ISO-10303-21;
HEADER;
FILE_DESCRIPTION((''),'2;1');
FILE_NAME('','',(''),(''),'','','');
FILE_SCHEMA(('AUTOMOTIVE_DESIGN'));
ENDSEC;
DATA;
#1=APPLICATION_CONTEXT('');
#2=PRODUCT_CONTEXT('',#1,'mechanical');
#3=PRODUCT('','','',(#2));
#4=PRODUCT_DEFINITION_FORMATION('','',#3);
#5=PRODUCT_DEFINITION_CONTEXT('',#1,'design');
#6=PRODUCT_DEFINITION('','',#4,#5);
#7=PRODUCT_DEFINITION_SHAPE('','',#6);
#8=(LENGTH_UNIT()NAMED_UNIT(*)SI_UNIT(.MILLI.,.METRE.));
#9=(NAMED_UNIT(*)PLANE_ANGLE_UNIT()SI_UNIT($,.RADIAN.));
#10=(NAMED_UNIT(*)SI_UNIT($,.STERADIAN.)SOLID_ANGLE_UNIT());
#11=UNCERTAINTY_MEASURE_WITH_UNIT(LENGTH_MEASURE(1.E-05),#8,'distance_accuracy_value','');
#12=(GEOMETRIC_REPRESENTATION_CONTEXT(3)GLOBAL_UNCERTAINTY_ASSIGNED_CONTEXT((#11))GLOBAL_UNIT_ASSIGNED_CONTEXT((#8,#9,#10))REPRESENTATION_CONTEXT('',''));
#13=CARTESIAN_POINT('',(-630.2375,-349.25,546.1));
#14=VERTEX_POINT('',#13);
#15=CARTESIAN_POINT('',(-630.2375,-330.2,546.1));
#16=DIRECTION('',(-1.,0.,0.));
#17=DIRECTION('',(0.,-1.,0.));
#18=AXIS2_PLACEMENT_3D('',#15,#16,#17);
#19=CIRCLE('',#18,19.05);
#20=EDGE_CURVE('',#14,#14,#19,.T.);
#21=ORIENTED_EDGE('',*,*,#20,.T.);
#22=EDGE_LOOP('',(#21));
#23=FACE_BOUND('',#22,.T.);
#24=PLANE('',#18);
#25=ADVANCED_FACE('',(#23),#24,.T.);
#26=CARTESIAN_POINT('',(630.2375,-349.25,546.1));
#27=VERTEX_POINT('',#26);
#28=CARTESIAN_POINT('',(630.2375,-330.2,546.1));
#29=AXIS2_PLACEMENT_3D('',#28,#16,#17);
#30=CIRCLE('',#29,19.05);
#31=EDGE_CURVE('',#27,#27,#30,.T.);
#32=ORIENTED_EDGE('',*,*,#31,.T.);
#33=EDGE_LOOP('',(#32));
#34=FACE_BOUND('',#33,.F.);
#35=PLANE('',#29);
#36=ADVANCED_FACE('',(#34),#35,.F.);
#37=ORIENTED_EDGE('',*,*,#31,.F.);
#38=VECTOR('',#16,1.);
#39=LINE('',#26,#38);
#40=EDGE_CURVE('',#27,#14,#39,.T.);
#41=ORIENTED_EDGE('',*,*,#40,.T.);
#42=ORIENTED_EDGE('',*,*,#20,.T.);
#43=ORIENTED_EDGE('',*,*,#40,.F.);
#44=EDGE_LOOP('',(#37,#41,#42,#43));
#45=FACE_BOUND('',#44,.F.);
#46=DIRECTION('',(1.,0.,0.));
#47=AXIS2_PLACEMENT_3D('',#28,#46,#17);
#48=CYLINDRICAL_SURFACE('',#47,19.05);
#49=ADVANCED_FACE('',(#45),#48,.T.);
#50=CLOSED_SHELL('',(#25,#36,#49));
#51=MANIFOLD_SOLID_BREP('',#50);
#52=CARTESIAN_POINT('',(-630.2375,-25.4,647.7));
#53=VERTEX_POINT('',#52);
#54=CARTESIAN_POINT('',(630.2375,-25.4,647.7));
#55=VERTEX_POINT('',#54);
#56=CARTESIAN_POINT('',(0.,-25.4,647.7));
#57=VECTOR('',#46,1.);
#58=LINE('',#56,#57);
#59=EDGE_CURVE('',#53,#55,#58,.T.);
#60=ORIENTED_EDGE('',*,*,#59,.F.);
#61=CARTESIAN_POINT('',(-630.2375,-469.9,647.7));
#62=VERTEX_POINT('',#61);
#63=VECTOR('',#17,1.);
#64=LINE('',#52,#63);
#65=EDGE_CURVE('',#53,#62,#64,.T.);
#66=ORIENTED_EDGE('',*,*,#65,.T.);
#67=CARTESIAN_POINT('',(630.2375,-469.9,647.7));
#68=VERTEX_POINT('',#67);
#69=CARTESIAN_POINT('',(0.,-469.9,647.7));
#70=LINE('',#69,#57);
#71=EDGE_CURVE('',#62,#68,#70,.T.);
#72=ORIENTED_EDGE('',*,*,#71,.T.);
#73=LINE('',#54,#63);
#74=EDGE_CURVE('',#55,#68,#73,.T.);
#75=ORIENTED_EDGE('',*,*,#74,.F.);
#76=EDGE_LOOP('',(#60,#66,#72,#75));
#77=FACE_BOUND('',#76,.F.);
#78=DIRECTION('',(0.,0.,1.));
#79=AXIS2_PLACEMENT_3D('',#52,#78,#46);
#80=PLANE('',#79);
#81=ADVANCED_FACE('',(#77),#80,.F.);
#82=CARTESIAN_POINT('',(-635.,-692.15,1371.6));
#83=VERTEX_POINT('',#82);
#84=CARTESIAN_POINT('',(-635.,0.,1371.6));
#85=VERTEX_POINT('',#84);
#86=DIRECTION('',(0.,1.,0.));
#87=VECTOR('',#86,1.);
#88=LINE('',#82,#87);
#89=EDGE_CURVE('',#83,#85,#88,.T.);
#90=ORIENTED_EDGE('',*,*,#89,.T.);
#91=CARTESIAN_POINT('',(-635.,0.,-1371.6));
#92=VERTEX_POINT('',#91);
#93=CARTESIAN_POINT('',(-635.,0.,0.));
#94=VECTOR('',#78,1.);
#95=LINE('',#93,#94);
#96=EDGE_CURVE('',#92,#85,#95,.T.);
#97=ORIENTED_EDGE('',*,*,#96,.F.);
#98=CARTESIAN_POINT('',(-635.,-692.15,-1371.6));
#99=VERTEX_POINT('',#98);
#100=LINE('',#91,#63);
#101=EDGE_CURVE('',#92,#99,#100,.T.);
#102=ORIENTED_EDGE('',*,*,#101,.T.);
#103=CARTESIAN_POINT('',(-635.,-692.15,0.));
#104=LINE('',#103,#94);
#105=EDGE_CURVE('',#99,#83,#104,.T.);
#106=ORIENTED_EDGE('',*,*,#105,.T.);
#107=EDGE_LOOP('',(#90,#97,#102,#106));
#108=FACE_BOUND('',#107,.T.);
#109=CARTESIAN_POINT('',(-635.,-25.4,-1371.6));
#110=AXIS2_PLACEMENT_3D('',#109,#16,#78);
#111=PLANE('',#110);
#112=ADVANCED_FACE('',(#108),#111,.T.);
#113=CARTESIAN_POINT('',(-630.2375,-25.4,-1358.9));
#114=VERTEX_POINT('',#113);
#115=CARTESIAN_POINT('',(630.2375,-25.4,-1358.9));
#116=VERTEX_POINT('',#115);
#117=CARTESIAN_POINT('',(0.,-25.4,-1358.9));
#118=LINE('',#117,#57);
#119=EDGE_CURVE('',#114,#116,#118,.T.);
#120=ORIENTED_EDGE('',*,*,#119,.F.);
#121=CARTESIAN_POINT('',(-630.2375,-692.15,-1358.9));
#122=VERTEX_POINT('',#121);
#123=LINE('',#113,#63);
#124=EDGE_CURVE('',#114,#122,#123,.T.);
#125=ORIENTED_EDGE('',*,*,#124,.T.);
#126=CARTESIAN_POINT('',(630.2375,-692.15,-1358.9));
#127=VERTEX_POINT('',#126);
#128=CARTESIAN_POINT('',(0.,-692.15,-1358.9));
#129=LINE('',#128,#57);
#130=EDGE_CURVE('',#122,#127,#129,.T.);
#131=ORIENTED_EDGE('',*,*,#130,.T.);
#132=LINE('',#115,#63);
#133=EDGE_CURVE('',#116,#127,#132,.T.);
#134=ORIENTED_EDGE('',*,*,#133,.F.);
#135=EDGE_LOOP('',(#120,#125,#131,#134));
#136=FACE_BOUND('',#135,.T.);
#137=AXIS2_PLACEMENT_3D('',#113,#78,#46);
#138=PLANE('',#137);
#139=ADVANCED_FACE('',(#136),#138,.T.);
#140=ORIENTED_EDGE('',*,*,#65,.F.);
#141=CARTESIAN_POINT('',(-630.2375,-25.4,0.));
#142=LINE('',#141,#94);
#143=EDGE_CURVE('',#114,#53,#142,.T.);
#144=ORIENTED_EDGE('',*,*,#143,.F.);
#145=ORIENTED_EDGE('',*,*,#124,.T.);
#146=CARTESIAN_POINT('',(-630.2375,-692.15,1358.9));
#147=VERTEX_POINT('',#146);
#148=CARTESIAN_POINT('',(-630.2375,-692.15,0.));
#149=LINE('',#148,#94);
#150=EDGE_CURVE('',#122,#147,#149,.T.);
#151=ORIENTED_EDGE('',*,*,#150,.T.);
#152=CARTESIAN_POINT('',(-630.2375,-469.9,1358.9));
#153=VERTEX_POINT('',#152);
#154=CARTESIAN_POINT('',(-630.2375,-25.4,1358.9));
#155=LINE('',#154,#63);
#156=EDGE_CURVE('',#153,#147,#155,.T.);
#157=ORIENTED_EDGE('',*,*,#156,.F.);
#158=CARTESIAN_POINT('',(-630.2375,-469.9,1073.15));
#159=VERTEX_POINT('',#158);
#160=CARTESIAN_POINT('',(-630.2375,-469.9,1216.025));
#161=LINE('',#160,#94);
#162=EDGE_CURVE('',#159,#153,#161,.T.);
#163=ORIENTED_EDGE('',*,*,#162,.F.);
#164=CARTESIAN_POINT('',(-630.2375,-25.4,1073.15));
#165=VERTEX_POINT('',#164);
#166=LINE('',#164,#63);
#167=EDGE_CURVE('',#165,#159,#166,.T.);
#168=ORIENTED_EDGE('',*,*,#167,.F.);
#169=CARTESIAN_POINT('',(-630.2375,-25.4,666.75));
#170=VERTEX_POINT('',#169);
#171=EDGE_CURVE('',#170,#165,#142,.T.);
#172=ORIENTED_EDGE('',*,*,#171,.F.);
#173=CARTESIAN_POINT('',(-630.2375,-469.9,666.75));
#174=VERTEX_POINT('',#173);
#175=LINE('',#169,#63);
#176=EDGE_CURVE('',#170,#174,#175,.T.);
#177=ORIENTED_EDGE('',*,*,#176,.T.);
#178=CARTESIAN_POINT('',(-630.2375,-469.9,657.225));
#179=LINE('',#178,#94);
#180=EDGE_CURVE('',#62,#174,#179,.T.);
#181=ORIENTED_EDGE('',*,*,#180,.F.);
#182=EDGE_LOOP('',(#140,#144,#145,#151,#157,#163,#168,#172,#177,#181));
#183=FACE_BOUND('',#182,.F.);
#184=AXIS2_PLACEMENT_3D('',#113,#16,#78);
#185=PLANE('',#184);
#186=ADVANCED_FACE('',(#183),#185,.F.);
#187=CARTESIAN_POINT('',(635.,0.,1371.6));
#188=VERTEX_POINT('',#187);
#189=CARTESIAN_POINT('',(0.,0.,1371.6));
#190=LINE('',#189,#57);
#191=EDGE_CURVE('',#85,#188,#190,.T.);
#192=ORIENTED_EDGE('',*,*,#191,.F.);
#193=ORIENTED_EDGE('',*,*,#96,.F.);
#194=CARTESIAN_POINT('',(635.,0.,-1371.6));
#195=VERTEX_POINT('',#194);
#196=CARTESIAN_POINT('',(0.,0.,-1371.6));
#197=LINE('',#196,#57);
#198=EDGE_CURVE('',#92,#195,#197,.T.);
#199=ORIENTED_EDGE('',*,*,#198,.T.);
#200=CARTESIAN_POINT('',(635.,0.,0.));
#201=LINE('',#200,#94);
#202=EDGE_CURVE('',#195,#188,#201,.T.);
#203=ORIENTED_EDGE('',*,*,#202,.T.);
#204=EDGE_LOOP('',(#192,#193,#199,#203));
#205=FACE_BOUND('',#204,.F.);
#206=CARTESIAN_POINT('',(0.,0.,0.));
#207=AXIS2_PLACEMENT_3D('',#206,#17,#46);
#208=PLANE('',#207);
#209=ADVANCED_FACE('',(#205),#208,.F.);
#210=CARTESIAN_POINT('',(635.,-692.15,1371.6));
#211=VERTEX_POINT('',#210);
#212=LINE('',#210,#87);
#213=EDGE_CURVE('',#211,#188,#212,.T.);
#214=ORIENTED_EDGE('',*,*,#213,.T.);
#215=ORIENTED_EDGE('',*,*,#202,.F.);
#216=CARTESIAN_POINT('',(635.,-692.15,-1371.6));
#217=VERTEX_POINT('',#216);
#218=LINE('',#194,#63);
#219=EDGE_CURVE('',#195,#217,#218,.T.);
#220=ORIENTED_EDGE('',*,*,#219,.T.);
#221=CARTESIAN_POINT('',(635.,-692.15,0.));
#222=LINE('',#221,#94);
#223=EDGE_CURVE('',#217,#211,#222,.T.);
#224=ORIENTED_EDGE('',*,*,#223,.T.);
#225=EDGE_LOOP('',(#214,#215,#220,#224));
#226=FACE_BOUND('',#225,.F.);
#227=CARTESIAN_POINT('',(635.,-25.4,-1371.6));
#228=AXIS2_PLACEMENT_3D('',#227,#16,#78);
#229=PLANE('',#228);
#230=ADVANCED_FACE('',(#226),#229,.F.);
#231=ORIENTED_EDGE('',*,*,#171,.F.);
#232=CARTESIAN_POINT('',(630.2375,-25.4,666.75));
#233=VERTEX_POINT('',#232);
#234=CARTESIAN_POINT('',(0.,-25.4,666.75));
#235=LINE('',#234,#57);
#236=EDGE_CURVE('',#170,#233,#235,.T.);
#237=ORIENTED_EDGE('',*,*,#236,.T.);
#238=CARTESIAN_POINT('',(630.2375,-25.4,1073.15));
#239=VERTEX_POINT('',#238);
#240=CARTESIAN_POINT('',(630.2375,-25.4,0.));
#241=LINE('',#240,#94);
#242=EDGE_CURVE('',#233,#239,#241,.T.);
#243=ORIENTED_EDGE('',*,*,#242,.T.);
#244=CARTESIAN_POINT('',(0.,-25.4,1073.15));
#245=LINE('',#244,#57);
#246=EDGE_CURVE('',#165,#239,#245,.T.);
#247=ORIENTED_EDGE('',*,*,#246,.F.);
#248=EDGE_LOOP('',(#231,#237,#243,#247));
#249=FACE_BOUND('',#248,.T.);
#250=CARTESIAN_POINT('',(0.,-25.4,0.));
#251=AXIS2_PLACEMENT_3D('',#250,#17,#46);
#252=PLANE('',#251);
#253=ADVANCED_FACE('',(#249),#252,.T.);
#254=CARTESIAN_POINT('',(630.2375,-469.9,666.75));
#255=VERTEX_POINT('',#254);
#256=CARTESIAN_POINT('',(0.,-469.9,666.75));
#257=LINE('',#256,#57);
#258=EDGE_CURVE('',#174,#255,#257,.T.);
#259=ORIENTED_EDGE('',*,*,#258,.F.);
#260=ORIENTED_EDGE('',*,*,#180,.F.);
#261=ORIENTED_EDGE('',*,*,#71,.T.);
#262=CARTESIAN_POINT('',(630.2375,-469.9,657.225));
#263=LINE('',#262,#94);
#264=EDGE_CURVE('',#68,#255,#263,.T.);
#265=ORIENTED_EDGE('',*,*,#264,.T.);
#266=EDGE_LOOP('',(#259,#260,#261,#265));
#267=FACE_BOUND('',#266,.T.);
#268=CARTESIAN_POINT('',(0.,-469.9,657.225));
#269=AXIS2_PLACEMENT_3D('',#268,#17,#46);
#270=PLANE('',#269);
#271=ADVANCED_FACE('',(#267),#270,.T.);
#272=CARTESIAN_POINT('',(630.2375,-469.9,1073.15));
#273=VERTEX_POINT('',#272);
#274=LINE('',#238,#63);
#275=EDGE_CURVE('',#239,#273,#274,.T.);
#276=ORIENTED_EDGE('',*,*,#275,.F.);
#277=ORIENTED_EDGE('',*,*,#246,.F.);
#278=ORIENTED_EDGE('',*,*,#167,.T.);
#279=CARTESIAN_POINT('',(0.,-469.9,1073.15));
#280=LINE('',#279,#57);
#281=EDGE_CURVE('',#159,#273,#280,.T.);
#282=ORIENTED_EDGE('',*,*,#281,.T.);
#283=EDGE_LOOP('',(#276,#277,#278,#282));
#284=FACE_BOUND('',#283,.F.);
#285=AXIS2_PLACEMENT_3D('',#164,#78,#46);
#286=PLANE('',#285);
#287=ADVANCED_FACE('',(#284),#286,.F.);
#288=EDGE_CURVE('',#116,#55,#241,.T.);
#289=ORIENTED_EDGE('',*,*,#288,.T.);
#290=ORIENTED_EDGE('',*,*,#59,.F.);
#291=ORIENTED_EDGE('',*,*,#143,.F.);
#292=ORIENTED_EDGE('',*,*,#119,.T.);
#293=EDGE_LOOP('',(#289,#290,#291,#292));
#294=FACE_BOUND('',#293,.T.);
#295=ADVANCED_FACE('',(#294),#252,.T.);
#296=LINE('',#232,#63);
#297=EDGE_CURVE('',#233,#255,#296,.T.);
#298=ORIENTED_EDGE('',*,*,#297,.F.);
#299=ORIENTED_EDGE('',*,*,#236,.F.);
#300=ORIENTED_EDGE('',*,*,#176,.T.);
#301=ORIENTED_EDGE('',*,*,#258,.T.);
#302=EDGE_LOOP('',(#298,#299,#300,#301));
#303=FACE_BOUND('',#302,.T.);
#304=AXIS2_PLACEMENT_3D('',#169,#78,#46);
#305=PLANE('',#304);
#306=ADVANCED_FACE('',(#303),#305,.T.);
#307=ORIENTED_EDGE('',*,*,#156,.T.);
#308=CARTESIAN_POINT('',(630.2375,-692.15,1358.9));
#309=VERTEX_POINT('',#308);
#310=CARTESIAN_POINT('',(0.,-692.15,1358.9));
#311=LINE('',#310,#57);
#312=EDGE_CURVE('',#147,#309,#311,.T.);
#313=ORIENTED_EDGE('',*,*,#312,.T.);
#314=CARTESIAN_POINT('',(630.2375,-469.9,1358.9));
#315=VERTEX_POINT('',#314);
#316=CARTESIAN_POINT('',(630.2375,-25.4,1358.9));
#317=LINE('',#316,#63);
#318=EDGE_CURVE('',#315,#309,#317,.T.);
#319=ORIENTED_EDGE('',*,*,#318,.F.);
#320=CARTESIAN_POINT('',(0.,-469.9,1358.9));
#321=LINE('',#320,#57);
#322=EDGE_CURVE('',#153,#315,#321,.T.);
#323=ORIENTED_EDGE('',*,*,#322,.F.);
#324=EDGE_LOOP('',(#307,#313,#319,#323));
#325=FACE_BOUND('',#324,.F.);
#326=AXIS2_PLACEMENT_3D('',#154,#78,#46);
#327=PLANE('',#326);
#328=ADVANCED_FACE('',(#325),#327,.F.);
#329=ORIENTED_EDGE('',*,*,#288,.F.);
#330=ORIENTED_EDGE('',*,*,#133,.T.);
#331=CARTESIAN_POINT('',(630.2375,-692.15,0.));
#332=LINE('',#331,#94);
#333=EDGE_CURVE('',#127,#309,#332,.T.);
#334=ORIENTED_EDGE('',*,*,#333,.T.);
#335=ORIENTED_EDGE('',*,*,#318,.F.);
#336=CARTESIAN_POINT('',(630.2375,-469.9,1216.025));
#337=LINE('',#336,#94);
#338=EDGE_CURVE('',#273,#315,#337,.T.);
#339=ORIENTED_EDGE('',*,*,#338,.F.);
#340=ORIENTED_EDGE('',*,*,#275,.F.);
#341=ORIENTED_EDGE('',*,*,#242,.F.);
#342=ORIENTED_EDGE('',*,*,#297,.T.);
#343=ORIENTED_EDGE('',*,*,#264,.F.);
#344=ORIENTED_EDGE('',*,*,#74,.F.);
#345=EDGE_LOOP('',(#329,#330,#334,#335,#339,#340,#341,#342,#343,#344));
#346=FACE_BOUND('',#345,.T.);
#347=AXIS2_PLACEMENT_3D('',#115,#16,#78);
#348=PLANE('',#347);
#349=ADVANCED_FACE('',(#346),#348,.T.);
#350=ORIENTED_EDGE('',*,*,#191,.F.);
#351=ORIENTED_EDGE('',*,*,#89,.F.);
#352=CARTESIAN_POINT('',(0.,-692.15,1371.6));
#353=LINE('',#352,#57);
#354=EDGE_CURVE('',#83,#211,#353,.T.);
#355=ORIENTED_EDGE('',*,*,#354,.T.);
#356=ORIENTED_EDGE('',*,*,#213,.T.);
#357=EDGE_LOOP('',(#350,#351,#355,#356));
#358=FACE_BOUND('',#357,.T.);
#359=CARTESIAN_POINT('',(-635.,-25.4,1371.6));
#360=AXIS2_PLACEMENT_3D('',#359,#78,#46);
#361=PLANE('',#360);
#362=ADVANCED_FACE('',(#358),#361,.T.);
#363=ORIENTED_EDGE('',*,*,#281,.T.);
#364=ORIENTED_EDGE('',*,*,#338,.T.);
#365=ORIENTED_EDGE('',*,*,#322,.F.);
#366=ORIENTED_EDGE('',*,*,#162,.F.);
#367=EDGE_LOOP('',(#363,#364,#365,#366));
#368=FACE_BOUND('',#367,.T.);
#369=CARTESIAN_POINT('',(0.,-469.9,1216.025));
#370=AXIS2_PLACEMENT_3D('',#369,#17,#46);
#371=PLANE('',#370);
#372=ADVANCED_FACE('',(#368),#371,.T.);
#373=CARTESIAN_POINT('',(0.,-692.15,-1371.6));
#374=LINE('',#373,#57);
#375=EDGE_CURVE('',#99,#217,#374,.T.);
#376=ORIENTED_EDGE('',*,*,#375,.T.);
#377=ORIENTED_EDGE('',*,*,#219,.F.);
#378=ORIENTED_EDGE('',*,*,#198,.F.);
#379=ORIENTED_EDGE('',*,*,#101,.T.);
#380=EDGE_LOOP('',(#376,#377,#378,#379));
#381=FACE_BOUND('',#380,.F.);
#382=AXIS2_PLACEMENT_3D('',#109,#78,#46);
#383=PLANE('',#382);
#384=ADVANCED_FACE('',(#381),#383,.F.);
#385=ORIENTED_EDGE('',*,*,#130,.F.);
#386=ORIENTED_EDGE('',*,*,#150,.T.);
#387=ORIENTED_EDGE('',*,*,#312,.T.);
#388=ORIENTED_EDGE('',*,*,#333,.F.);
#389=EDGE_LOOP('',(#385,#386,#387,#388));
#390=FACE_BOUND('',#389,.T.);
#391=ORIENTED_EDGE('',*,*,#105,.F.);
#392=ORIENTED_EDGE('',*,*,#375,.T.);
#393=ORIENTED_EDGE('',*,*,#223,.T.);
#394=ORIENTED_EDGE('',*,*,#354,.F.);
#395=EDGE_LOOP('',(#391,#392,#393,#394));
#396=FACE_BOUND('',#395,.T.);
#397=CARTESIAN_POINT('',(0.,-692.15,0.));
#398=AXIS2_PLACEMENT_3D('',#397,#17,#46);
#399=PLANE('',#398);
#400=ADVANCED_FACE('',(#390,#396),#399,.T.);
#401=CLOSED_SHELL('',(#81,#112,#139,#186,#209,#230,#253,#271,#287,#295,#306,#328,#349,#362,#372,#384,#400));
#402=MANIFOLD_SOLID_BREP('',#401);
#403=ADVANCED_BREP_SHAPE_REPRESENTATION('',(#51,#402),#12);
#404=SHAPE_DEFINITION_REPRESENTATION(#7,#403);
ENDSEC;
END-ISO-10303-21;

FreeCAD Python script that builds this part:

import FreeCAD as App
import Part
import Sketcher
from FreeCAD import Vector
Q = App.Units.Quantity

doc = App.newDocument("Part")
body = doc.addObject("PartDesign::Body", "Body")

# Sketch on XZ plane
sketch1 = body.newObject("Sketcher::SketchObject", "Sketch")
sketch1.AttachmentSupport = (doc.getObject("XZ_Plane"), [""])
sketch1.MapMode = "FlatFace"
sketch1.addGeometry([
    Part.LineSegment(Vector(-635, 1372, 0), Vector(-635, -1372, 0)),
    Part.LineSegment(Vector(-635, -1372, 0), Vector(635, -1372, 0)),
    Part.LineSegment(Vector(635, -1372, 0), Vector(635, 1372, 0)),
    Part.LineSegment(Vector(635, 1372, 0), Vector(-635, 1372, 0)),
], False)
sketch1.addConstraint([
    Sketcher.Constraint("Coincident", 0, 2, 1, 1),
    Sketcher.Constraint("Coincident", 1, 2, 2, 1),
    Sketcher.Constraint("Coincident", 2, 2, 3, 1),
    Sketcher.Constraint("Coincident", 3, 2, 0, 1),
    Sketcher.Constraint("Vertical", 0),
    Sketcher.Constraint("Horizontal", 1),
    Sketcher.Constraint("Vertical", 2),
    Sketcher.Constraint("Horizontal", 3),
    Sketcher.Constraint("Symmetric", 0, 2, 2, 2, -1, 1),
    Sketcher.Constraint("DistanceX", 1, 1, 1, 2, Q("50 in")),
    Sketcher.Constraint("DistanceY", 0, 2, 0, 1, Q("108 in")),
])
pad1 = body.newObject("PartDesign::Pad", "Pad")
pad1.Profile = sketch1
pad1.Length = Q("1 in")

# Sketch on XZ plane
sketch2 = body.newObject("Sketcher::SketchObject", "Sketch001")
sketch2.AttachmentSupport = (doc.getObject("XZ_Plane"), [""])
sketch2.MapMode = "FlatFace"
sketch2.AttachmentOffset = App.Placement(Vector(0, 0, 1 * 25.4), App.Rotation())
sketch2.addGeometry([
    Part.LineSegment(Vector(-635, 1372, 0), Vector(-635, -1372, 0)),  # 0
    Part.LineSegment(Vector(-635, -1372, 0), Vector(635, -1372, 0)),  # 1
    Part.LineSegment(Vector(635, -1372, 0), Vector(635, 1372, 0)),  # 2
    Part.LineSegment(Vector(635, 1372, 0), Vector(-635, 1372, 0)),  # 3
    Part.LineSegment(Vector(630, -1359, 0), Vector(-630, -1359, 0)),  # 4
    Part.LineSegment(Vector(-630, -1359, 0), Vector(-630, 1359, 0)),  # 5
    Part.LineSegment(Vector(-630, 1359, 0), Vector(630, 1359, 0)),  # 6
    Part.LineSegment(Vector(630, 1359, 0), Vector(630, -1359, 0)),  # 7
], False)
sketch2.addConstraint([
    Sketcher.Constraint("Coincident", 0, 2, 1, 1),
    Sketcher.Constraint("Coincident", 1, 2, 2, 1),
    Sketcher.Constraint("Coincident", 2, 2, 3, 1),
    Sketcher.Constraint("Coincident", 3, 2, 0, 1),
    Sketcher.Constraint("Coincident", 4, 2, 5, 1),
    Sketcher.Constraint("Coincident", 5, 2, 6, 1),
    Sketcher.Constraint("Coincident", 6, 2, 7, 1),
    Sketcher.Constraint("Coincident", 7, 2, 4, 1),
    Sketcher.Constraint("Vertical", 0),
    Sketcher.Constraint("Horizontal", 1),
    Sketcher.Constraint("Vertical", 2),
    Sketcher.Constraint("Horizontal", 3),
    Sketcher.Constraint("Horizontal", 4),
    Sketcher.Constraint("Vertical", 5),
    Sketcher.Constraint("Horizontal", 6),
    Sketcher.Constraint("Vertical", 7),
    Sketcher.Constraint("Symmetric", 0, 2, 2, 2, -1, 1),
    Sketcher.Constraint("Symmetric", 4, 2, 6, 2, -1, 1),
    Sketcher.Constraint("DistanceX", 1, 1, 1, 2, Q("50 in")),
    Sketcher.Constraint("DistanceY", 0, 2, 0, 1, Q("108 in")),
    Sketcher.Constraint("DistanceY", 5, 1, 5, 2, Q("107 in")),
    Sketcher.Constraint("DistanceX", 4, 2, 4, 1, Q("49.625 in")),
])
pad2 = body.newObject("PartDesign::Pad", "Pad001")
pad2.Profile = sketch2
pad2.Length = Q("26.25 in")

# Sketch on XZ plane
sketch3 = body.newObject("Sketcher::SketchObject", "Sketch002")
sketch3.AttachmentSupport = (doc.getObject("XZ_Plane"), [""])
sketch3.MapMode = "FlatFace"
sketch3.AttachmentOffset = App.Placement(Vector(0, 0, 1 * 25.4), App.Rotation())
sketch3.addGeometry([
    Part.LineSegment(Vector(-630, 1359, 0), Vector(-630, 1073, 0)),  # 0
    Part.LineSegment(Vector(-630, 1073, 0), Vector(630, 1073, 0)),  # 1
    Part.LineSegment(Vector(630, 1073, 0), Vector(630, 1359, 0)),  # 2
    Part.LineSegment(Vector(630, 1359, 0), Vector(-630, 1359, 0)),  # 3
    Part.LineSegment(Vector(-630, 667, 0), Vector(-630, 648, 0)),  # 4
    Part.LineSegment(Vector(-630, 648, 0), Vector(630, 648, 0)),  # 5
    Part.LineSegment(Vector(630, 648, 0), Vector(630, 667, 0)),  # 6
    Part.LineSegment(Vector(630, 667, 0), Vector(-630, 667, 0)),  # 7
], False)
sketch3.addConstraint([
    Sketcher.Constraint("Coincident", 0, 2, 1, 1),
    Sketcher.Constraint("Coincident", 1, 2, 2, 1),
    Sketcher.Constraint("Coincident", 2, 2, 3, 1),
    Sketcher.Constraint("Coincident", 3, 2, 0, 1),
    Sketcher.Constraint("Coincident", 4, 2, 5, 1),
    Sketcher.Constraint("Coincident", 5, 2, 6, 1),
    Sketcher.Constraint("Coincident", 6, 2, 7, 1),
    Sketcher.Constraint("Coincident", 7, 2, 4, 1),
    Sketcher.Constraint("Vertical", 0),
    Sketcher.Constraint("Horizontal", 1),
    Sketcher.Constraint("Vertical", 2),
    Sketcher.Constraint("Horizontal", 3),
    Sketcher.Constraint("Vertical", 4),
    Sketcher.Constraint("Horizontal", 5),
    Sketcher.Constraint("Vertical", 6),
    Sketcher.Constraint("Horizontal", 7),
    Sketcher.Constraint("Vertical", 3, 2, 4, 2),
    Sketcher.Constraint("Vertical", 2, 2, 5, 2),
    Sketcher.Constraint("DistanceY", 4, 2, 3, 2, Q("28 in")),
    Sketcher.Constraint("DistanceY", 6, 2, 1, 2, Q("16 in")),
    Sketcher.Constraint("DistanceY", 0, 2, 0, 1, Q("11.25 in")),
    Sketcher.Constraint("DistanceY", -1, 1, 2, 2, Q("53.5 in")),
    Sketcher.Constraint("DistanceX", 1, 1, 1, 2, Q("49.625 in")),
    Sketcher.Constraint("DistanceX", 0, 2, -1, 1, Q("24.8125 in")),
])
pad3 = body.newObject("PartDesign::Pad", "Pad002")
pad3.Profile = sketch3
pad3.Length = Q("17.5 in")
body2 = doc.addObject("PartDesign::Body", "Body001")

# Sketch on YZ plane
sketch4 = body2.newObject("Sketcher::SketchObject", "Sketch003")
sketch4.AttachmentSupport = (doc.getObject("YZ_Plane001"), [""])
sketch4.MapMode = "FlatFace"
sketch4.AttachmentOffset = App.Placement(Vector(0, 0, 24.8125 * 25.4), App.Rotation())
sketch4.addGeometry(Part.Circle(Vector(-330, 546, 0), Vector(0, 0, 1), 19), False)
sketch4.addConstraint([
    Sketcher.Constraint("Diameter", 0, Q("1.5 in")),
    Sketcher.Constraint("DistanceX", 0, 3, -1, 1, Q("13 in")),
    Sketcher.Constraint("DistanceY", -1, 1, 0, 3, Q("21.5 in")),
])
pad4 = body2.newObject("PartDesign::Pad", "Pad003")
pad4.Profile = sketch4
pad4.Length = Q("49.625 in")
pad4.Reversed = True

doc.recompute()
